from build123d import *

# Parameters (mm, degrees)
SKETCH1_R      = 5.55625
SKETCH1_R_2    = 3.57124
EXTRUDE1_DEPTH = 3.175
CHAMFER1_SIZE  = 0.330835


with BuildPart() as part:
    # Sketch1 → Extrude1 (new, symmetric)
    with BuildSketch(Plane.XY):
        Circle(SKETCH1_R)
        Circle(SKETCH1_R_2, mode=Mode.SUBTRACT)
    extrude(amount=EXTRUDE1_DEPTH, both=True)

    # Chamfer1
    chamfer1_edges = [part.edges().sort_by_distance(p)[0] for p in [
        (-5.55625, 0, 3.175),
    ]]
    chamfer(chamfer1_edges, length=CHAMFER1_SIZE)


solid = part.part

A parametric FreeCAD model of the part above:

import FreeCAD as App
import Part
import Sketcher
from FreeCAD import Vector
Q = App.Units.Quantity


def edges_at(feature, points):
    """Names of the edges that pass closest to the given points."""
    edges = feature.Shape.Edges
    near = lambda p: min(range(len(edges)), key=lambda i: edges[i].distToShape(Part.Vertex(*p))[0])
    return sorted({f"Edge{near(p) + 1}" for p in points})

doc = App.newDocument("Part")
body = doc.addObject("PartDesign::Body", "Body")

# Sketch on XY plane
sketch1 = body.newObject("Sketcher::SketchObject", "Sketch")
sketch1.AttachmentSupport = (doc.getObject("XY_Plane"), [""])
sketch1.MapMode = "FlatFace"
sketch1.addGeometry([
    Part.Circle(Vector(0, 0, 0), Vector(0, 0, 1), 5.6),
    Part.Circle(Vector(0, 0, 0), Vector(0, 0, 1), 3.6),
], False)
sketch1.addConstraint([
    Sketcher.Constraint("Coincident", 0, 3, -1, 1),
    Sketcher.Constraint("Coincident", 1, 3, -1, 1),
    Sketcher.Constraint("Diameter", 0, Q("0.4375 in")),
    Sketcher.Constraint("Diameter", 1, Q("0.2812 in")),
])
pad1 = body.newObject("PartDesign::Pad", "Pad")
pad1.Profile = sketch1
pad1.Length = Q("0.25 in")
pad1.Midplane = True
doc.recompute()

chamfer = body.newObject("PartDesign::Chamfer", "Chamfer")
chamfer.Base = (pad1, edges_at(pad1, [(-5.556, 0, 3.175)]))
chamfer.Size = 0.330835

doc.recompute()
